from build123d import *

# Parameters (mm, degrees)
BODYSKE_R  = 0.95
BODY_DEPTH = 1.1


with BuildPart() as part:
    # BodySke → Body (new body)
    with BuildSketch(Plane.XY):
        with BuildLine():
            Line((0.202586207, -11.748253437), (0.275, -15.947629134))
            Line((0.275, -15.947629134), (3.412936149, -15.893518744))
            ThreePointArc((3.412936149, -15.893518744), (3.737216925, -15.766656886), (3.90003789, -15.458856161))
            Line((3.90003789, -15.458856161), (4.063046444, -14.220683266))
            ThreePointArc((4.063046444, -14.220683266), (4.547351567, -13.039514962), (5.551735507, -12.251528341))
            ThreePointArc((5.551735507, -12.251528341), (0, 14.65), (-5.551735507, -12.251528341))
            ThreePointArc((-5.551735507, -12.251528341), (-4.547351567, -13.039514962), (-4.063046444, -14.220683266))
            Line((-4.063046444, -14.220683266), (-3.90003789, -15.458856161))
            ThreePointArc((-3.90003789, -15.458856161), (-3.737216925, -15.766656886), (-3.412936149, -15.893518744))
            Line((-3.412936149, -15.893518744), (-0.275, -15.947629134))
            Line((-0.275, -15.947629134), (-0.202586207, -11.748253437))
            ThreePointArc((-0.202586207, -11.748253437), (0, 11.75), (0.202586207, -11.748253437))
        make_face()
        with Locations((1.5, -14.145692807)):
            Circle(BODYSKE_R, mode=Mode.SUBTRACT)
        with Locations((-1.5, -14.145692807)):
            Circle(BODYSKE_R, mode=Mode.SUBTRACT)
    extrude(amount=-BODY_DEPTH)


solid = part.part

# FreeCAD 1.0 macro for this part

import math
import FreeCAD as App
import Part
import Sketcher

V = App.Vector
Q = App.Units.Quantity

doc = App.newDocument("Part")
body = doc.addObject("PartDesign::Body", "Body")

# Sketch on XY plane
sketch1 = doc.addObject("Sketcher::SketchObject", "Sketch")
body.addObject(sketch1)
sketch1.AttachmentSupport = (doc.XY_Plane, [""])
sketch1.MapMode = "FlatFace"
sketch1.addGeometry([
    Part.LineSegment(V(0.2, -11.75, 0), V(0.28, -15.95, 0)),  # 0
    Part.LineSegment(V(0.28, -15.95, 0), V(3.41, -15.89, 0)),  # 1
    Part.ArcOfCircle(Part.Circle(V(3.4, -15.39, 0), V(0, 0, 1), 0.5), math.radians(-89), math.radians(-7)),  # 2
    Part.LineSegment(V(3.9, -15.46, 0), V(4.06, -14.22, 0)),  # 3
    Part.ArcOfCircle(Part.Circle(V(6.54, -14.55, 0), V(0, 0, 1), 2.5), math.radians(113), math.radians(173)),  # 4
    Part.ArcOfCircle(Part.Circle(V(0, 0.63, 0), V(0, 0, 1), 14.02), math.radians(-67), math.radians(247)),  # 5
    Part.ArcOfCircle(Part.Circle(V(-6.54, -14.55, 0), V(0, 0, 1), 2.5), math.radians(7), math.radians(67)),  # 6
    Part.LineSegment(V(-4.06, -14.22, 0), V(-3.9, -15.46, 0)),  # 7
    Part.ArcOfCircle(Part.Circle(V(-3.4, -15.39, 0), V(0, 0, 1), 0.5), math.radians(-173), math.radians(-91)),  # 8
    Part.LineSegment(V(-3.41, -15.89, 0), V(-0.28, -15.95, 0)),  # 9
    Part.LineSegment(V(-0.28, -15.95, 0), V(-0.2, -11.75, 0)),  # 10
    Part.ArcOfCircle(Part.Circle(V(0, 0, 0), V(0, 0, 1), 11.75), math.radians(-89), math.radians(269)),  # 11
    Part.Circle(V(-1.5, -14.15, 0), V(0, 0, 1), 0.95),  # 12
    Part.Circle(V(1.5, -14.15, 0), V(0, 0, 1), 0.95),  # 13
], False)
sketch1.addConstraint([
    Sketcher.Constraint("Coincident", 0, 2, 1, 1),
    Sketcher.Constraint("Tangent", 1, 2, 2, 1),
    Sketcher.Constraint("Tangent", 2, 2, 3, 1),
    Sketcher.Constraint("Tangent", 3, 2, 4, 2),
    Sketcher.Constraint("Tangent", 4, 1, 5, 1),
    Sketcher.Constraint("Tangent", 5, 2, 6, 2),
    Sketcher.Constraint("Tangent", 6, 1, 7, 1),
    Sketcher.Constraint("Tangent", 7, 2, 8, 1),
    Sketcher.Constraint("Tangent", 8, 2, 9, 1),
    Sketcher.Constraint("Coincident", 9, 2, 10, 1),
    Sketcher.Constraint("Coincident", 10, 2, 11, 2),
    Sketcher.Constraint("Coincident", 11, 1, 0, 1),
    Sketcher.Constraint("Coincident", 11, 3, -1, 1),
    Sketcher.Constraint("Equal", 4, 6),
    Sketcher.Constraint("Equal", 2, 8),
    Sketcher.Constraint("Equal", 12, 13),
    Sketcher.Constraint("Symmetric", 4, 3, 6, 3, -2),
    Sketcher.Constraint("Symmetric", 2, 3, 8, 3, -2),
    Sketcher.Constraint("Symmetric", 12, 3, 13, 3, -2),
    Sketcher.Constraint("Symmetric", 0, 2, 9, 2, -2),
    Sketcher.Constraint("Perpendicular", 0, 1),
    Sketcher.Constraint("Perpendicular", 9, 10),
    Sketcher.Constraint("Diameter", 12, 1.9),
    Sketcher.Constraint("Radius", 2, 0.5),
    Sketcher.Constraint("Radius", 11, 11.75),
    Sketcher.Constraint("Angle", 3, Q("82.5 deg")),
    Sketcher.Constraint("DistanceX", 12, 3, 13, 3, 3.0),
    Sketcher.Constraint("Distance", 0, 4.2),
    Sketcher.Constraint("DistanceX", 9, 2, 0, 2, 0.55),
    Sketcher.Constraint("Radius", 4, 2.499644),
    Sketcher.Constraint("Radius", 5, 14.023627),
    Sketcher.Constraint("DistanceY", 8, 3, 12, 3, 1.2479),
    Sketcher.Constraint("DistanceX", 1, 2, 2, 2, 0.487102),
    Sketcher.Constraint("DistanceX", 1, 2, 4, 1, 2.138799),
    Sketcher.Constraint("DistanceY", 0, 2, 5, 2, 3.696101),
])
pad1 = doc.addObject("PartDesign::Pad", "Pad")
body.addObject(pad1)
pad1.Profile = sketch1
pad1.Length = 1.1
pad1.Reversed = True

doc.recompute()
